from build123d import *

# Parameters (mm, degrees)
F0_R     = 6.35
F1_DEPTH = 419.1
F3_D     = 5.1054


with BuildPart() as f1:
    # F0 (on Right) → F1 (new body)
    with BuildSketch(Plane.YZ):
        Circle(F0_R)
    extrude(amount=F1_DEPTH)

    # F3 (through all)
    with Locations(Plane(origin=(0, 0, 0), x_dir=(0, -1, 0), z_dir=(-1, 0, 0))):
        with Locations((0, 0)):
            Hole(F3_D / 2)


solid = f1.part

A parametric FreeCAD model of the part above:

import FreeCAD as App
import Part
import Sketcher

V = App.Vector
Q = App.Units.Quantity

doc = App.newDocument("Part")
body = doc.addObject("PartDesign::Body", "Body")

# Sketch on YZ plane
sketch1 = doc.addObject("Sketcher::SketchObject", "Sketch")
body.addObject(sketch1)
sketch1.AttachmentSupport = (doc.YZ_Plane, [""])
sketch1.MapMode = "FlatFace"
sketch1.addGeometry(Part.Circle(V(0, 0, 0), V(0, 0, 1), 6), False)
sketch1.addConstraint(Sketcher.Constraint("Coincident", 0, 3, -1, 1))
sketch1.addConstraint(Sketcher.Constraint("Diameter", 0, Q("0.5 in")))
pad1 = doc.addObject("PartDesign::Pad", "Pad")
body.addObject(pad1)
pad1.Profile = sketch1
pad1.Length = Q("16.5 in")

# Sketch on YZ plane
sketch2 = doc.addObject("Sketcher::SketchObject", "Sketch001")
body.addObject(sketch2)
sketch2.AttachmentSupport = (doc.YZ_Plane, [""])
sketch2.MapMode = "FlatFace"
sketch2.addGeometry(Part.Circle(V(0, 0, 0), V(0, 0, 1), 2.6), False)
sketch2.addConstraint(Sketcher.Constraint("Coincident", 0, 3, -1, 1))
sketch2.addConstraint(Sketcher.Constraint("Diameter", 0, Q("0.201 in")))
doc.recompute()
hole = doc.addObject("PartDesign::Hole", "Hole")
body.addObject(hole)
hole.Profile = sketch2
hole.ThreadType = "None"
hole.Diameter = Q("0.201 in")
hole.DepthType = "ThroughAll"
hole.Reversed = True

doc.recompute()
